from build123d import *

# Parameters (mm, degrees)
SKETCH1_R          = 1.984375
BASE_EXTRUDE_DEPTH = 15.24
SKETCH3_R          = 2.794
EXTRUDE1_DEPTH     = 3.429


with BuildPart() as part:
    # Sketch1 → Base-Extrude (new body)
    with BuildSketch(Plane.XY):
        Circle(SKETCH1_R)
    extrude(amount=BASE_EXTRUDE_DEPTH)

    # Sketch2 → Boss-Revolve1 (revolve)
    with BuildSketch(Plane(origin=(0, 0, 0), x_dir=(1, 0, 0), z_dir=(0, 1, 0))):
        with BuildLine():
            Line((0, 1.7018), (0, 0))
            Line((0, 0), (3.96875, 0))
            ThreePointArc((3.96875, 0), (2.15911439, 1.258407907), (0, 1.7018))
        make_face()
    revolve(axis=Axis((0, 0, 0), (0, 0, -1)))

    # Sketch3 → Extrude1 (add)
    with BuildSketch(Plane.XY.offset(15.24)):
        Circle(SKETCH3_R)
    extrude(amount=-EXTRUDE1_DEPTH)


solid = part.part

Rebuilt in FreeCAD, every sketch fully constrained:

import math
import FreeCAD as App
import Part
import Sketcher

V = App.Vector
Q = App.Units.Quantity

doc = App.newDocument("Part")
body = doc.addObject("PartDesign::Body", "Body")

# Sketch on XY plane
sketch1 = body.newObject("Sketcher::SketchObject", "Sketch")
sketch1.AttachmentSupport = (doc.getObject("XY_Plane"), [""])
sketch1.MapMode = "FlatFace"
sketch1.addGeometry(Part.Circle(V(0, 0, 0), V(0, 0, 1), 1.984375), False)
sketch1.addConstraint([
    Sketcher.Constraint("Coincident", 0, 3, -1, 1),
    Sketcher.Constraint("Diameter", 0, Q("0.15625 in")),
])
pad1 = body.newObject("PartDesign::Pad", "Pad")
pad1.Profile = sketch1
pad1.Length = Q("0.6 in")

# Sketch on XZ plane
sketch2 = body.newObject("Sketcher::SketchObject", "Sketch001")
sketch2.AttachmentSupport = (doc.getObject("XZ_Plane"), [""])
sketch2.MapMode = "FlatFace"
sketch2.addGeometry([
    Part.LineSegment(V(0, -1.7018, 0), V(0, 0, 0)),
    Part.LineSegment(V(0, 0, 0), V(3.96875, 0, 0)),
    Part.ArcOfCircle(Part.Circle(V(0, 3.77684, 0), V(0, 0, 1), 5.47864), math.radians(-90), math.radians(-43.580693)),
], False)
sketch2.addConstraint([
    Sketcher.Constraint("Coincident", 0, 2, 1, 1),
    Sketcher.Constraint("Coincident", 1, 2, 2, 2),
    Sketcher.Constraint("Coincident", 2, 1, 0, 1),
    Sketcher.Constraint("Vertical", 0),
    Sketcher.Constraint("Horizontal", 1),
    Sketcher.Constraint("Coincident", 0, 2, -1, 1),
    Sketcher.Constraint("PointOnObject", 2, 3, -2),
    Sketcher.Constraint("DistanceX", 1, 1, 1, 2, Q("0.15625 in")),
    Sketcher.Constraint("DistanceY", 0, 1, 0, 2, Q("0.067 in")),
])
revolution = body.newObject("PartDesign::Revolution", "Revolution")
revolution.Profile = sketch2
revolution.ReferenceAxis = (sketch2, ["V_Axis"])
revolution.Angle = 360

# Sketch on XY plane
sketch3 = body.newObject("Sketcher::SketchObject", "Sketch002")
sketch3.AttachmentSupport = (doc.getObject("XY_Plane"), [""])
sketch3.MapMode = "FlatFace"
sketch3.AttachmentOffset = App.Placement(V(0, 0, 0.6 * 25.4), App.Rotation())
sketch3.addGeometry(Part.Circle(V(0, 0, 0), V(0, 0, 1), 2.794), False)
sketch3.addConstraint([
    Sketcher.Constraint("Coincident", 0, 3, -1, 1),
    Sketcher.Constraint("Diameter", 0, Q("0.22 in")),
])
pad2 = body.newObject("PartDesign::Pad", "Pad001")
pad2.Profile = sketch3
pad2.Length = Q("0.135 in")
pad2.Reversed = True

doc.recompute()
